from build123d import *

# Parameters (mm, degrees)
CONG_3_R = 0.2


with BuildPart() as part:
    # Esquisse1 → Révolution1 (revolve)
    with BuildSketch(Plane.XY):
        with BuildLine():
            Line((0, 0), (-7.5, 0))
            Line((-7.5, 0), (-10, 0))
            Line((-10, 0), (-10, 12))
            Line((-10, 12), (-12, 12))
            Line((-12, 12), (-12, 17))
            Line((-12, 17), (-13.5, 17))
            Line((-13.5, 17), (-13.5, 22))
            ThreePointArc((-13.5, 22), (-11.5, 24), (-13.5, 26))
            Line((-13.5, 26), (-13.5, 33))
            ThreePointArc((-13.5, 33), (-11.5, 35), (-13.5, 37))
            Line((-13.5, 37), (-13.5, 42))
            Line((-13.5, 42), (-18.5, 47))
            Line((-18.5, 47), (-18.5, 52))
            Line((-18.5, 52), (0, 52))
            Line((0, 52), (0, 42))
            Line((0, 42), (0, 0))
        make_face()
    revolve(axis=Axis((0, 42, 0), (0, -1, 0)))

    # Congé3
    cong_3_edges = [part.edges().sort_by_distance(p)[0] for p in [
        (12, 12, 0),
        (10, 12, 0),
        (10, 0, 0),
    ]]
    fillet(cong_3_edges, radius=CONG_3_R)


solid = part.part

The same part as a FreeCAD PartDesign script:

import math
import FreeCAD as App
import Part
import Sketcher
from FreeCAD import Vector
Q = App.Units.Quantity


def edges_at(feature, points):
    """Names of the edges that pass closest to the given points."""
    edges = feature.Shape.Edges
    near = lambda p: min(range(len(edges)), key=lambda i: edges[i].distToShape(Part.Vertex(*p))[0])
    return sorted({f"Edge{near(p) + 1}" for p in points})

doc = App.newDocument("Part")
body = doc.addObject("PartDesign::Body", "Body")

# Sketch on XY plane
sketch1 = doc.addObject("Sketcher::SketchObject", "Sketch")
body.addObject(sketch1)
sketch1.AttachmentSupport = (doc.XY_Plane, [""])
sketch1.MapMode = "FlatFace"
sketch1.addGeometry(Part.LineSegment(Vector(-10, 0, 0), Vector(0, 0, 0)), False)
sketch1.addGeometry(Part.LineSegment(Vector(0, 0, 0), Vector(0, 52, 0)), False)
sketch1.addGeometry(Part.LineSegment(Vector(0, 52, 0), Vector(-18.5, 52, 0)), False)
sketch1.addGeometry(Part.LineSegment(Vector(-18.5, 52, 0), Vector(-18.5, 47, 0)), False)
sketch1.addGeometry(Part.LineSegment(Vector(-18.5, 47, 0), Vector(-13.5, 42, 0)), False)
sketch1.addGeometry(Part.LineSegment(Vector(-13.5, 42, 0), Vector(-13.5, 37, 0)), False)
sketch1.addGeometry(Part.ArcOfCircle(Part.Circle(Vector(-13.5, 35, 0), Vector(0, 0, 1), 2), math.radians(-90), math.radians(90)), False)
sketch1.addGeometry(Part.LineSegment(Vector(-13.5, 33, 0), Vector(-13.5, 26, 0)), False)
sketch1.addGeometry(Part.ArcOfCircle(Part.Circle(Vector(-13.5, 24, 0), Vector(0, 0, 1), 2), math.radians(-90), math.radians(90)), False)
sketch1.addGeometry(Part.LineSegment(Vector(-13.5, 22, 0), Vector(-13.5, 17, 0)), False)
sketch1.addGeometry(Part.LineSegment(Vector(-13.5, 17, 0), Vector(-12, 17, 0)), False)
sketch1.addGeometry(Part.LineSegment(Vector(-12, 17, 0), Vector(-12, 12, 0)), False)
sketch1.addGeometry(Part.LineSegment(Vector(-12, 12, 0), Vector(-10, 12, 0)), False)
sketch1.addGeometry(Part.LineSegment(Vector(-10, 12, 0), Vector(-10, 0, 0)), False)
sketch1.addConstraint(Sketcher.Constraint("Coincident", 0, 2, 1, 1))
sketch1.addConstraint(Sketcher.Constraint("Coincident", 1, 2, 2, 1))
sketch1.addConstraint(Sketcher.Constraint("Coincident", 2, 2, 3, 1))
sketch1.addConstraint(Sketcher.Constraint("Coincident", 3, 2, 4, 1))
sketch1.addConstraint(Sketcher.Constraint("Coincident", 4, 2, 5, 1))
sketch1.addConstraint(Sketcher.Constraint("Coincident", 5, 2, 6, 2))
sketch1.addConstraint(Sketcher.Constraint("Coincident", 6, 1, 7, 1))
sketch1.addConstraint(Sketcher.Constraint("Coincident", 7, 2, 8, 2))
sketch1.addConstraint(Sketcher.Constraint("Coincident", 8, 1, 9, 1))
sketch1.addConstraint(Sketcher.Constraint("Coincident", 9, 2, 10, 1))
sketch1.addConstraint(Sketcher.Constraint("Coincident", 10, 2, 11, 1))
sketch1.addConstraint(Sketcher.Constraint("Coincident", 11, 2, 12, 1))
sketch1.addConstraint(Sketcher.Constraint("Coincident", 12, 2, 13, 1))
sketch1.addConstraint(Sketcher.Constraint("Coincident", 13, 2, 0, 1))
sketch1.addConstraint(Sketcher.Constraint("Horizontal", 0))
sketch1.addConstraint(Sketcher.Constraint("Vertical", 1))
sketch1.addConstraint(Sketcher.Constraint("Horizontal", 2))
sketch1.addConstraint(Sketcher.Constraint("Vertical", 3))
sketch1.addConstraint(Sketcher.Constraint("Vertical", 5))
sketch1.addConstraint(Sketcher.Constraint("Vertical", 7))
sketch1.addConstraint(Sketcher.Constraint("Vertical", 9))
sketch1.addConstraint(Sketcher.Constraint("Horizontal", 10))
sketch1.addConstraint(Sketcher.Constraint("Vertical", 11))
sketch1.addConstraint(Sketcher.Constraint("Horizontal", 12))
sketch1.addConstraint(Sketcher.Constraint("Vertical", 13))
sketch1.addConstraint(Sketcher.Constraint("Coincident", 0, 2, -1, 1))
sketch1.addConstraint(Sketcher.Constraint("Equal", 6, 8))
sketch1.addConstraint(Sketcher.Constraint("Vertical", 6, 3, 8, 3))
sketch1.addConstraint(Sketcher.Constraint("Vertical", 8, 3, 4, 2))
sketch1.addConstraint(Sketcher.Constraint("Vertical", 5, 2, 6, 1))
sketch1.addConstraint(Sketcher.Constraint("Vertical", 7, 2, 8, 1))
sketch1.addConstraint(Sketcher.Constraint("Equal", 3, 5))
sketch1.addConstraint(Sketcher.Constraint("Equal", 5, 9))
sketch1.addConstraint(Sketcher.Constraint("Equal", 9, 11))
sketch1.addConstraint(Sketcher.Constraint("Radius", 6, 2.0))
sketch1.addConstraint(Sketcher.Constraint("DistanceX", 0, 1, 0, 2, 10.0))
sketch1.addConstraint(Sketcher.Constraint("DistanceX", 12, 1, 12, 2, 2.0))
sketch1.addConstraint(Sketcher.Constraint("DistanceY", 1, 1, 1, 2, 52.0))
sketch1.addConstraint(Sketcher.Constraint("DistanceY", 3, 2, 3, 1, 5.0))
sketch1.addConstraint(Sketcher.Constraint("DistanceY", 7, 2, 7, 1, 7.0))
sketch1.addConstraint(Sketcher.Constraint("DistanceY", 13, 2, 13, 1, 12.0))
sketch1.addConstraint(Sketcher.Constraint("Angle", 4, Q("-45 deg")))
sketch1.addConstraint(Sketcher.Constraint("DistanceX", 2, 2, 2, 1, 18.5))
revolution = doc.addObject("PartDesign::Revolution", "Revolution")
body.addObject(revolution)
revolution.Profile = sketch1
revolution.ReferenceAxis = (sketch1, ["V_Axis"])
revolution.Angle = 360
doc.recompute()

fillet = doc.addObject("PartDesign::Fillet", "Fillet")
body.addObject(fillet)
fillet.Base = (revolution, edges_at(revolution, [(12, 12, 0), (10, 12, 0), (10, 0, 0)]))
fillet.Radius = 0.2

doc.recompute()
